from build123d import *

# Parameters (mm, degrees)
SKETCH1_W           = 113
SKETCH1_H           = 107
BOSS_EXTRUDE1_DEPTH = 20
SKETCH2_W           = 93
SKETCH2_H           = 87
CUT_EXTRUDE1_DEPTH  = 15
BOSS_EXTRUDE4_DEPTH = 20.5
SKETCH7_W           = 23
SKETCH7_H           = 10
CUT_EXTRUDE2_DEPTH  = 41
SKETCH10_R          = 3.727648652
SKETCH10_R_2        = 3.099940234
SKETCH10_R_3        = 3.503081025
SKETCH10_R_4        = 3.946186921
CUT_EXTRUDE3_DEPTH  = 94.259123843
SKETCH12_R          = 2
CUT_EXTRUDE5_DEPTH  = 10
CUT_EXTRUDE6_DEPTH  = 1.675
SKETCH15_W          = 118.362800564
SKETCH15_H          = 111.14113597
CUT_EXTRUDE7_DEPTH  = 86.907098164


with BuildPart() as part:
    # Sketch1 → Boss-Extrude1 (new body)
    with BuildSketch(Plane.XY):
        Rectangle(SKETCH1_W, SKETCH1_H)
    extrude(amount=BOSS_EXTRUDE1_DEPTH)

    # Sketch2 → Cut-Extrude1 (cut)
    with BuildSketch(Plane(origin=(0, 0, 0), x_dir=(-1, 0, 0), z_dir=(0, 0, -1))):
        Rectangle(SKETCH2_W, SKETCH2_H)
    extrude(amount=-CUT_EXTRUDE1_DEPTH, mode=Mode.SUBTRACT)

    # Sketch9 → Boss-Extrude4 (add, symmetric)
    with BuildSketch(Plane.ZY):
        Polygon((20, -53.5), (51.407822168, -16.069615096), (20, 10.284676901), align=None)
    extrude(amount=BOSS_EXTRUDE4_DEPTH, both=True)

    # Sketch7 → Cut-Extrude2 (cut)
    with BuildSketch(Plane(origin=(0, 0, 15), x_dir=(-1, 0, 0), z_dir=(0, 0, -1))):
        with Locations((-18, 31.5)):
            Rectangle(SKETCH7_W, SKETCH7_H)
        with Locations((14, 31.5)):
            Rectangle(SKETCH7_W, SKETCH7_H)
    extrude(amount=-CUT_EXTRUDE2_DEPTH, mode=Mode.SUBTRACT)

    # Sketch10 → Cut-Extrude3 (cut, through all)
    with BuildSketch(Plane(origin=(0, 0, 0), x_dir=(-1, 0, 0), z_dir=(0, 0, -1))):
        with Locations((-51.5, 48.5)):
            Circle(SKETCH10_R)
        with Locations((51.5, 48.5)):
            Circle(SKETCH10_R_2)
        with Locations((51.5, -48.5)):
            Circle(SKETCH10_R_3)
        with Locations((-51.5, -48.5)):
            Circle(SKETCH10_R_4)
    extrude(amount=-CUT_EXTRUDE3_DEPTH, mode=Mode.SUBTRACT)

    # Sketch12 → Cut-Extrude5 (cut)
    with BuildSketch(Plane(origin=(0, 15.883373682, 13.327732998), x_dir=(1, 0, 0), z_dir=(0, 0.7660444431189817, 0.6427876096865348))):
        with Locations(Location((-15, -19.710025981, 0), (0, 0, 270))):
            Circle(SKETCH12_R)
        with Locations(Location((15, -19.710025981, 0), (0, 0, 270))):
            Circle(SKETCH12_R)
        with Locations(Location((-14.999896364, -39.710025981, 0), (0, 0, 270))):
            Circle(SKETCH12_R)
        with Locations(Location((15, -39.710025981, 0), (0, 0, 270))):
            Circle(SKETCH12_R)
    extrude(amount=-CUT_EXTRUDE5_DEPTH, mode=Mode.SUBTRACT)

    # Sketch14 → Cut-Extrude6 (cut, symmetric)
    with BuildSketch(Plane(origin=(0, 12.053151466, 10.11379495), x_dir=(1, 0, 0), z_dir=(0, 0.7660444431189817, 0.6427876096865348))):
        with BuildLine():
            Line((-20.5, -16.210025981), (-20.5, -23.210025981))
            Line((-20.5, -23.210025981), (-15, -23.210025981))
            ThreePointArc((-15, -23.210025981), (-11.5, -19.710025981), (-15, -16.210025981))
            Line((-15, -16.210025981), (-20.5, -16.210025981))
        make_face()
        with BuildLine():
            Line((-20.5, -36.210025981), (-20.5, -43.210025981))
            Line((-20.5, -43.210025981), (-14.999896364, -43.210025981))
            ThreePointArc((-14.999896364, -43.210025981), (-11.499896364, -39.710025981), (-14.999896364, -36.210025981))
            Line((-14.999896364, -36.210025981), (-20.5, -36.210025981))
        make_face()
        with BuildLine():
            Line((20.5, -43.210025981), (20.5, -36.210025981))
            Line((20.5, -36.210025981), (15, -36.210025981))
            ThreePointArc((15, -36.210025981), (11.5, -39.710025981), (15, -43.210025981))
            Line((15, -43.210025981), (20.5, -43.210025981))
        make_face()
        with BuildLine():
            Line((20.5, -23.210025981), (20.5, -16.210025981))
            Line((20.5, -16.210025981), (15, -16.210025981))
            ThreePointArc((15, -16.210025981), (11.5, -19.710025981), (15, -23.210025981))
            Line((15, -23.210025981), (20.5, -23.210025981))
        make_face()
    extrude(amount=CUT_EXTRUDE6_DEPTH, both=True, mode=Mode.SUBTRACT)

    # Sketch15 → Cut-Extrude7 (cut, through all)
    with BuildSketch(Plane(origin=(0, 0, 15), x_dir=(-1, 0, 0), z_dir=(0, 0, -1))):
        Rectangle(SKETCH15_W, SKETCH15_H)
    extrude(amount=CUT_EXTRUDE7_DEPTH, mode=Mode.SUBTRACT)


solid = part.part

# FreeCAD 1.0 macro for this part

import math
import FreeCAD as App
import Part
import Sketcher
from FreeCAD import Vector
Q = App.Units.Quantity


def add_polygon(sketch, points):
    """Adds a closed chain of lines whose ends are joined by coincident constraints."""
    first, n = sketch.GeometryCount, len(points)
    for a, b in zip(points, points[1:] + points[:1]):
        sketch.addGeometry(Part.LineSegment(App.Vector(*a, 0), App.Vector(*b, 0)), False)
    for i in range(n):
        sketch.addConstraint(Sketcher.Constraint("Coincident", first + i, 2, first + (i + 1) % n, 1))

doc = App.newDocument("Part")
body = doc.addObject("PartDesign::Body", "Body")

# Sketch on XY plane
sketch1 = body.newObject("Sketcher::SketchObject", "Sketch")
sketch1.AttachmentSupport = (doc.getObject("XY_Plane"), [""])
sketch1.MapMode = "FlatFace"
add_polygon(sketch1, [(-56, 54), (-56, -54), (56, -54), (56, 54)])  # lines 0-3
sketch1.addConstraint([
    Sketcher.Constraint("Vertical", 0),
    Sketcher.Constraint("Horizontal", 1),
    Sketcher.Constraint("Vertical", 2),
    Sketcher.Constraint("Horizontal", 3),
    Sketcher.Constraint("Symmetric", 0, 2, 2, 2, -1, 1),
    Sketcher.Constraint("DistanceX", 1, 1, 1, 2, Q("113 mm")),
    Sketcher.Constraint("DistanceY", 0, 2, 0, 1, Q("107 mm")),
])
pad1 = body.newObject("PartDesign::Pad", "Pad")
pad1.Profile = sketch1
pad1.Length = 20

# Sketch on XY plane
sketch2 = body.newObject("Sketcher::SketchObject", "Sketch001")
sketch2.AttachmentSupport = (doc.getObject("XY_Plane"), [""])
sketch2.MapMode = "FlatFace"
add_polygon(sketch2, [(46, 44), (46, -44), (-46, -44), (-46, 44)])  # lines 0-3
sketch2.addConstraint([
    Sketcher.Constraint("Vertical", 0),
    Sketcher.Constraint("Horizontal", 1),
    Sketcher.Constraint("Vertical", 2),
    Sketcher.Constraint("Horizontal", 3),
    Sketcher.Constraint("Symmetric", 0, 2, 2, 2, -1, 1),
    Sketcher.Constraint("DistanceX", 1, 2, 1, 1, Q("93 mm")),
    Sketcher.Constraint("DistanceY", 0, 2, 0, 1, Q("87 mm")),
])
pocket1 = body.newObject("PartDesign::Pocket", "Pocket")
pocket1.Profile = sketch2
pocket1.Length = 15
pocket1.Reversed = True

# Sketch on YZ plane
sketch3 = body.newObject("Sketcher::SketchObject", "Sketch002")
sketch3.AttachmentSupport = (doc.getObject("YZ_Plane"), [""])
sketch3.MapMode = "FlatFace"
add_polygon(sketch3, [(-54, 20), (-16, 51), (10, 20)])  # lines 0-2
sketch3.addConstraint([
    Sketcher.Constraint("Horizontal", 2),
    Sketcher.Constraint("Perpendicular", 0, 1),
    Sketcher.Constraint("Angle", 0, Q("40 deg")),
    Sketcher.Constraint("Distance", 1, Q("41 mm")),
    Sketcher.Constraint("DistanceY", -1, 1, 1, 2, Q("20 mm")),
    Sketcher.Constraint("DistanceX", 2, 2, -1, 1, Q("53.5 mm")),
])
pad2 = body.newObject("PartDesign::Pad", "Pad001")
pad2.Profile = sketch3
pad2.Length = 41
pad2.Midplane = True

# Sketch on XY plane
sketch4 = body.newObject("Sketcher::SketchObject", "Sketch003")
sketch4.AttachmentSupport = (doc.getObject("XY_Plane"), [""])
sketch4.MapMode = "FlatFace"
sketch4.AttachmentOffset = App.Placement(Vector(0, 0, 15), App.Rotation())
add_polygon(sketch4, [(30, 36), (30, 26), (6, 26), (6, 36)])  # lines 0-3
add_polygon(sketch4, [(-2, 36), (-2, 26), (-26, 26), (-26, 36)])  # lines 4-7
sketch4.addConstraint([
    Sketcher.Constraint("Vertical", 0),
    Sketcher.Constraint("Horizontal", 1),
    Sketcher.Constraint("Vertical", 2),
    Sketcher.Constraint("Horizontal", 3),
    Sketcher.Constraint("Vertical", 4),
    Sketcher.Constraint("Horizontal", 5),
    Sketcher.Constraint("Vertical", 6),
    Sketcher.Constraint("Horizontal", 7),
    Sketcher.Constraint("Horizontal", 1, 2, 4, 2),
    Sketcher.Constraint("Horizontal", 3, 2, 6, 2),
    Sketcher.Constraint("Equal", 3, 5),
    Sketcher.Constraint("DistanceX", 1, 2, 1, 1, Q("23 mm")),
    Sketcher.Constraint("DistanceY", 0, 2, 0, 1, Q("10 mm")),
    Sketcher.Constraint("DistanceX", 4, 2, 1, 2, Q("9 mm")),
    Sketcher.Constraint("DistanceX", -1, 1, 0, 2, Q("29.5 mm")),
    Sketcher.Constraint("DistanceY", -1, 1, 0, 2, Q("26.5 mm")),
])
pocket2 = body.newObject("PartDesign::Pocket", "Pocket001")
pocket2.Profile = sketch4
pocket2.Length = 41
pocket2.Reversed = True

# Sketch on XY plane
sketch5 = body.newObject("Sketcher::SketchObject", "Sketch004")
sketch5.AttachmentSupport = (doc.getObject("XY_Plane"), [""])
sketch5.MapMode = "FlatFace"
sketch5.addGeometry([
    Part.Circle(Vector(51.5, 48.5, 0), Vector(0, 0, 1), 3.7),
    Part.Circle(Vector(-51.5, 48.5, 0), Vector(0, 0, 1), 3.1),
    Part.Circle(Vector(-51.5, -48.5, 0), Vector(0, 0, 1), 3.5),
    Part.Circle(Vector(51.5, -48.5, 0), Vector(0, 0, 1), 3.9),
], False)
sketch5.addConstraint([
    Sketcher.Constraint("Symmetric", 0, 3, 2, 3, -1, 1),
    Sketcher.Constraint("Symmetric", 1, 3, 3, 3, -1, 1),
    Sketcher.Constraint("Symmetric", 0, 3, 1, 3, -2),
    Sketcher.Constraint("DistanceX", 1, 3, 0, 3, Q("103 mm")),
    Sketcher.Constraint("DistanceY", 2, 3, 1, 3, Q("97 mm")),
    Sketcher.Constraint("Diameter", 1, Q("6.19988 mm")),
    Sketcher.Constraint("Diameter", 0, Q("7.455297 mm")),
    Sketcher.Constraint("Diameter", 2, Q("7.006162 mm")),
    Sketcher.Constraint("Diameter", 3, Q("7.892374 mm")),
])
pocket3 = body.newObject("PartDesign::Pocket", "Pocket002")
pocket3.Profile = sketch5
pocket3.Type = "ThroughAll"
pocket3.Reversed = True

# Sketch on an angled plane
sketch6 = body.newObject("Sketcher::SketchObject", "Sketch005")
sketch6.Placement = App.Placement(Vector(0, 15.883374, 13.327733), App.Rotation(Vector(1, 0, 0), Vector(0, 0.64278761, -0.766044443), Vector(0, 0.766044443, 0.64278761), "ZXY"))
sketch6.addGeometry([
    Part.Circle(Vector(-15, -19.7, 0), Vector(0, 0, 1), 2),
    Part.Circle(Vector(15, -19.7, 0), Vector(0, 0, 1), 2),
    Part.Circle(Vector(-15, -39.7, 0), Vector(0, 0, 1), 2),
    Part.Circle(Vector(15, -39.7, 0), Vector(0, 0, 1), 2),
], False)
sketch6.addConstraint([
    Sketcher.Constraint("Equal", 0, 1),
    Sketcher.Constraint("Equal", 1, 2),
    Sketcher.Constraint("Equal", 2, 3),
    Sketcher.Constraint("Symmetric", 0, 3, 1, 3, -2),
    Sketcher.Constraint("Horizontal", 2, 3, 3, 3),
    Sketcher.Constraint("Vertical", 1, 3, 3, 3),
    Sketcher.Constraint("Diameter", 0, Q("4 mm")),
    Sketcher.Constraint("DistanceX", 0, 3, -1, 1, Q("15 mm")),
    Sketcher.Constraint("DistanceY", 2, 3, 0, 3, Q("20 mm")),
    Sketcher.Constraint("DistanceY", 0, 3, -1, 1, Q("19.710026 mm")),
    Sketcher.Constraint("DistanceX", 2, 3, -1, 1, Q("14.999896 mm")),
])
pocket4 = body.newObject("PartDesign::Pocket", "Pocket003")
pocket4.Profile = sketch6
pocket4.Length = 10

# Sketch on an angled plane
sketch7 = body.newObject("Sketcher::SketchObject", "Sketch006")
sketch7.Placement = App.Placement(Vector(0, 12.053151, 10.113795), App.Rotation(Vector(1, 0, 0), Vector(0, 0.64278761, -0.766044443), Vector(0, 0.766044443, 0.64278761), "ZXY"))
sketch7.addGeometry([
    Part.LineSegment(Vector(-20.5, -16.2, 0), Vector(-20.5, -23.2, 0)),  # 0
    Part.LineSegment(Vector(-20.5, -23.2, 0), Vector(-15, -23.2, 0)),  # 1
    Part.ArcOfCircle(Part.Circle(Vector(-15, -19.7, 0), Vector(0, 0, 1), 3.5), math.radians(-90), math.radians(90)),  # 2
    Part.LineSegment(Vector(-15, -16.2, 0), Vector(-20.5, -16.2, 0)),  # 3
    Part.LineSegment(Vector(-20.5, -36.2, 0), Vector(-20.5, -43.2, 0)),  # 4
    Part.LineSegment(Vector(-20.5, -43.2, 0), Vector(-15, -43.2, 0)),  # 5
    Part.ArcOfCircle(Part.Circle(Vector(-15, -39.7, 0), Vector(0, 0, 1), 3.5), math.radians(-90), math.radians(90)),  # 6
    Part.LineSegment(Vector(-15, -36.2, 0), Vector(-20.5, -36.2, 0)),  # 7
    Part.LineSegment(Vector(20.5, -43.2, 0), Vector(20.5, -36.2, 0)),  # 8
    Part.LineSegment(Vector(20.5, -36.2, 0), Vector(15, -36.2, 0)),  # 9
    Part.ArcOfCircle(Part.Circle(Vector(15, -39.7, 0), Vector(0, 0, 1), 3.5), math.radians(90), math.radians(270)),  # 10
    Part.LineSegment(Vector(15, -43.2, 0), Vector(20.5, -43.2, 0)),  # 11
    Part.LineSegment(Vector(20.5, -23.2, 0), Vector(20.5, -16.2, 0)),  # 12
    Part.LineSegment(Vector(20.5, -16.2, 0), Vector(15, -16.2, 0)),  # 13
    Part.ArcOfCircle(Part.Circle(Vector(15, -19.7, 0), Vector(0, 0, 1), 3.5), math.radians(90), math.radians(270)),  # 14
    Part.LineSegment(Vector(15, -23.2, 0), Vector(20.5, -23.2, 0)),  # 15
], False)
sketch7.addConstraint([
    Sketcher.Constraint("Coincident", 0, 2, 1, 1),
    Sketcher.Constraint("Tangent", 1, 2, 2, 1),
    Sketcher.Constraint("Tangent", 2, 2, 3, 1),
    Sketcher.Constraint("Coincident", 3, 2, 0, 1),
    Sketcher.Constraint("Coincident", 4, 2, 5, 1),
    Sketcher.Constraint("Tangent", 5, 2, 6, 1),
    Sketcher.Constraint("Tangent", 6, 2, 7, 1),
    Sketcher.Constraint("Coincident", 7, 2, 4, 1),
    Sketcher.Constraint("Coincident", 8, 2, 9, 1),
    Sketcher.Constraint("Tangent", 9, 2, 10, 1),
    Sketcher.Constraint("Tangent", 10, 2, 11, 1),
    Sketcher.Constraint("Coincident", 11, 2, 8, 1),
    Sketcher.Constraint("Coincident", 12, 2, 13, 1),
    Sketcher.Constraint("Tangent", 13, 2, 14, 1),
    Sketcher.Constraint("Tangent", 14, 2, 15, 1),
    Sketcher.Constraint("Coincident", 15, 2, 12, 1),
    Sketcher.Constraint("Vertical", 0),
    Sketcher.Constraint("Horizontal", 1),
    Sketcher.Constraint("Horizontal", 3),
    Sketcher.Constraint("Vertical", 4),
    Sketcher.Constraint("Horizontal", 5),
    Sketcher.Constraint("Horizontal", 7),
    Sketcher.Constraint("Vertical", 8),
    Sketcher.Constraint("Horizontal", 9),
    Sketcher.Constraint("Horizontal", 11),
    Sketcher.Constraint("Vertical", 12),
    Sketcher.Constraint("Horizontal", 13),
    Sketcher.Constraint("Horizontal", 15),
    Sketcher.Constraint("Equal", 2, 6),
    Sketcher.Constraint("Equal", 6, 10),
    Sketcher.Constraint("Equal", 10, 14),
    Sketcher.Constraint("Symmetric", 2, 3, 14, 3, -2),
    Sketcher.Constraint("Symmetric", 7, 2, 8, 2, -2),
    Sketcher.Constraint("Vertical", 10, 3, 14, 3),
    Sketcher.Constraint("Vertical", 3, 2, 4, 2),
    Sketcher.Constraint("Vertical", 11, 2, 12, 2),
    Sketcher.Constraint("Radius", 2, Q("3.5 mm")),
    Sketcher.Constraint("DistanceX", 1, 1, 1, 2, Q("5.5 mm")),
    Sketcher.Constraint("DistanceX", 2, 3, -1, 1, Q("15 mm")),
    Sketcher.Constraint("DistanceY", 6, 3, 2, 3, Q("20 mm")),
    Sketcher.Constraint("DistanceX", 5, 1, 5, 2, Q("5.500104 mm")),
    Sketcher.Constraint("DistanceY", 2, 3, -1, 1, Q("19.710026 mm")),
])
pocket5 = body.newObject("PartDesign::Pocket", "Pocket004")
pocket5.Profile = sketch7
pocket5.Length = 3.35
pocket5.Midplane = True

# Sketch on XY plane
sketch8 = body.newObject("Sketcher::SketchObject", "Sketch007")
sketch8.AttachmentSupport = (doc.getObject("XY_Plane"), [""])
sketch8.MapMode = "FlatFace"
sketch8.AttachmentOffset = App.Placement(Vector(0, 0, 15), App.Rotation())
add_polygon(sketch8, [(59, 56), (59, -56), (-59, -56), (-59, 56)])  # lines 0-3
sketch8.addConstraint([
    Sketcher.Constraint("Vertical", 0),
    Sketcher.Constraint("Horizontal", 1),
    Sketcher.Constraint("Vertical", 2),
    Sketcher.Constraint("Horizontal", 3),
    Sketcher.Constraint("Symmetric", 0, 2, 2, 2, -1, 1),
    Sketcher.Constraint("DistanceX", 1, 2, 1, 1, Q("118.362801 mm")),
    Sketcher.Constraint("DistanceY", 0, 2, 0, 1, Q("111.141136 mm")),
])
pocket6 = body.newObject("PartDesign::Pocket", "Pocket005")
pocket6.Profile = sketch8
pocket6.Type = "ThroughAll"

doc.recompute()
